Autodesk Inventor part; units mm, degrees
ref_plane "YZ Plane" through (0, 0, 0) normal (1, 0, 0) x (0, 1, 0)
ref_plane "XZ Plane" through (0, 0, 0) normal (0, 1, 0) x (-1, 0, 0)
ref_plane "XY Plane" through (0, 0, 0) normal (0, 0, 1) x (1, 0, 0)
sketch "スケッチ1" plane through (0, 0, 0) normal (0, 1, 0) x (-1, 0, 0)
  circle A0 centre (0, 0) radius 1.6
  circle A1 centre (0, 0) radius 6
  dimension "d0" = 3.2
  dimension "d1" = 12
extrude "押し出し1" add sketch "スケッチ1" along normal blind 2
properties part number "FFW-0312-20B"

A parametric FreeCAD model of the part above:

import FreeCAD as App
import Part
import Sketcher
from FreeCAD import Vector
Q = App.Units.Quantity

doc = App.newDocument("Part")
body = doc.addObject("PartDesign::Body", "Body")

sketch1 = doc.addObject("Sketcher::SketchObject", "Sketch")
body.addObject(sketch1)
sketch1.AttachmentSupport = (doc.XZ_Plane, [""])
sketch1.MapMode = "FlatFace"
sketch1.addGeometry(Part.Circle(Vector(0, 0, 0), Vector(0, 0, 1), 6), False)
sketch1.addGeometry(Part.Circle(Vector(0, 0, 0), Vector(0, 0, 1), 1.6), False)
sketch1.addConstraint(Sketcher.Constraint("Coincident", 0, 3, -1, 1))
sketch1.addConstraint(Sketcher.Constraint("Coincident", 1, 3, -1, 1))
sketch1.addConstraint(Sketcher.Constraint("Diameter", 0, Q("12 mm")))
sketch1.addConstraint(Sketcher.Constraint("Diameter", 1, Q("3.2 mm")))
pad1 = doc.addObject("PartDesign::Pad", "Pad")
body.addObject(pad1)
pad1.Profile = sketch1
pad1.Length = 2
pad1.Reversed = True

doc.recompute()
